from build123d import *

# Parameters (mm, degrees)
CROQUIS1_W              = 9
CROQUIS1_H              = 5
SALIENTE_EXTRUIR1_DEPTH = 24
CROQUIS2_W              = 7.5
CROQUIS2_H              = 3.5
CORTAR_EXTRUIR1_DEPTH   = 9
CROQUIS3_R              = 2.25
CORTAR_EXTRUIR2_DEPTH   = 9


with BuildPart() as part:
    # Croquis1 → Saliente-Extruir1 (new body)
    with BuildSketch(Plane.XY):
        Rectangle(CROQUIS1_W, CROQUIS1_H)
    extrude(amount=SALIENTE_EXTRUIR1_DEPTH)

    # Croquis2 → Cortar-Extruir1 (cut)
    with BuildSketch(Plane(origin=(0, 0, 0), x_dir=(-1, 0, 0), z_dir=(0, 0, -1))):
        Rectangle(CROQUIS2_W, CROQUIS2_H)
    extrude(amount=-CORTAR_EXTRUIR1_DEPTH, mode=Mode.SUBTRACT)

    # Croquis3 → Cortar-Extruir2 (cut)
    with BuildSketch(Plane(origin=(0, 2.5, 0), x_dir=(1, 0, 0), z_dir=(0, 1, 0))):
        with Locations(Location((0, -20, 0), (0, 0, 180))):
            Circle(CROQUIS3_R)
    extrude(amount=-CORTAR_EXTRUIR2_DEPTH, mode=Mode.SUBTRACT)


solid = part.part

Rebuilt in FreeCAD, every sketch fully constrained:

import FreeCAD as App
import Part
import Sketcher

V = App.Vector
Q = App.Units.Quantity


def add_polygon(sketch, points):
    """Adds a closed chain of lines whose ends are joined by coincident constraints."""
    first, n = sketch.GeometryCount, len(points)
    for a, b in zip(points, points[1:] + points[:1]):
        sketch.addGeometry(Part.LineSegment(App.Vector(*a, 0), App.Vector(*b, 0)), False)
    for i in range(n):
        sketch.addConstraint(Sketcher.Constraint("Coincident", first + i, 2, first + (i + 1) % n, 1))

doc = App.newDocument("Part")
body = doc.addObject("PartDesign::Body", "Body")

# Sketch on XY plane
sketch1 = doc.addObject("Sketcher::SketchObject", "Sketch")
body.addObject(sketch1)
sketch1.AttachmentSupport = (doc.XY_Plane, [""])
sketch1.MapMode = "FlatFace"
add_polygon(sketch1, [(-4, 2), (-4, -2), (4, -2), (4, 2)])  # lines 0-3
sketch1.addConstraint([
    Sketcher.Constraint("Vertical", 0),
    Sketcher.Constraint("Horizontal", 1),
    Sketcher.Constraint("Vertical", 2),
    Sketcher.Constraint("Horizontal", 3),
    Sketcher.Constraint("Symmetric", 0, 2, 2, 2, -1, 1),
    Sketcher.Constraint("DistanceX", 1, 1, 1, 2, Q("9 mm")),
    Sketcher.Constraint("DistanceY", 0, 2, 0, 1, Q("5 mm")),
])
pad1 = doc.addObject("PartDesign::Pad", "Pad")
body.addObject(pad1)
pad1.Profile = sketch1
pad1.Length = 24

# Sketch on XY plane
sketch2 = doc.addObject("Sketcher::SketchObject", "Sketch001")
body.addObject(sketch2)
sketch2.AttachmentSupport = (doc.XY_Plane, [""])
sketch2.MapMode = "FlatFace"
add_polygon(sketch2, [(3.8, 1.8), (3.8, -1.8), (-3.8, -1.8), (-3.8, 1.8)])  # lines 0-3
sketch2.addConstraint([
    Sketcher.Constraint("Vertical", 0),
    Sketcher.Constraint("Horizontal", 1),
    Sketcher.Constraint("Vertical", 2),
    Sketcher.Constraint("Horizontal", 3),
    Sketcher.Constraint("Symmetric", 0, 2, 2, 2, -1, 1),
    Sketcher.Constraint("DistanceX", 1, 2, 1, 1, Q("7.5 mm")),
    Sketcher.Constraint("DistanceY", 0, 2, 0, 1, Q("3.5 mm")),
])
pocket1 = doc.addObject("PartDesign::Pocket", "Pocket")
body.addObject(pocket1)
pocket1.Profile = sketch2
pocket1.Length = 9
pocket1.Reversed = True

# Sketch on XZ plane
sketch3 = doc.addObject("Sketcher::SketchObject", "Sketch002")
body.addObject(sketch3)
sketch3.AttachmentSupport = (doc.XZ_Plane, [""])
sketch3.MapMode = "FlatFace"
sketch3.AttachmentOffset = App.Placement(V(0, 0, -2.5), App.Rotation())
sketch3.addGeometry(Part.Circle(V(0, 20, 0), V(0, 0, 1), 2.2), False)
sketch3.addConstraint([
    Sketcher.Constraint("PointOnObject", 0, 3, -2),
    Sketcher.Constraint("Diameter", 0, Q("4.5 mm")),
    Sketcher.Constraint("DistanceY", -1, 1, 0, 3, Q("20 mm")),
])
pocket2 = doc.addObject("PartDesign::Pocket", "Pocket001")
body.addObject(pocket2)
pocket2.Profile = sketch3
pocket2.Length = 9
pocket2.Reversed = True

doc.recompute()
